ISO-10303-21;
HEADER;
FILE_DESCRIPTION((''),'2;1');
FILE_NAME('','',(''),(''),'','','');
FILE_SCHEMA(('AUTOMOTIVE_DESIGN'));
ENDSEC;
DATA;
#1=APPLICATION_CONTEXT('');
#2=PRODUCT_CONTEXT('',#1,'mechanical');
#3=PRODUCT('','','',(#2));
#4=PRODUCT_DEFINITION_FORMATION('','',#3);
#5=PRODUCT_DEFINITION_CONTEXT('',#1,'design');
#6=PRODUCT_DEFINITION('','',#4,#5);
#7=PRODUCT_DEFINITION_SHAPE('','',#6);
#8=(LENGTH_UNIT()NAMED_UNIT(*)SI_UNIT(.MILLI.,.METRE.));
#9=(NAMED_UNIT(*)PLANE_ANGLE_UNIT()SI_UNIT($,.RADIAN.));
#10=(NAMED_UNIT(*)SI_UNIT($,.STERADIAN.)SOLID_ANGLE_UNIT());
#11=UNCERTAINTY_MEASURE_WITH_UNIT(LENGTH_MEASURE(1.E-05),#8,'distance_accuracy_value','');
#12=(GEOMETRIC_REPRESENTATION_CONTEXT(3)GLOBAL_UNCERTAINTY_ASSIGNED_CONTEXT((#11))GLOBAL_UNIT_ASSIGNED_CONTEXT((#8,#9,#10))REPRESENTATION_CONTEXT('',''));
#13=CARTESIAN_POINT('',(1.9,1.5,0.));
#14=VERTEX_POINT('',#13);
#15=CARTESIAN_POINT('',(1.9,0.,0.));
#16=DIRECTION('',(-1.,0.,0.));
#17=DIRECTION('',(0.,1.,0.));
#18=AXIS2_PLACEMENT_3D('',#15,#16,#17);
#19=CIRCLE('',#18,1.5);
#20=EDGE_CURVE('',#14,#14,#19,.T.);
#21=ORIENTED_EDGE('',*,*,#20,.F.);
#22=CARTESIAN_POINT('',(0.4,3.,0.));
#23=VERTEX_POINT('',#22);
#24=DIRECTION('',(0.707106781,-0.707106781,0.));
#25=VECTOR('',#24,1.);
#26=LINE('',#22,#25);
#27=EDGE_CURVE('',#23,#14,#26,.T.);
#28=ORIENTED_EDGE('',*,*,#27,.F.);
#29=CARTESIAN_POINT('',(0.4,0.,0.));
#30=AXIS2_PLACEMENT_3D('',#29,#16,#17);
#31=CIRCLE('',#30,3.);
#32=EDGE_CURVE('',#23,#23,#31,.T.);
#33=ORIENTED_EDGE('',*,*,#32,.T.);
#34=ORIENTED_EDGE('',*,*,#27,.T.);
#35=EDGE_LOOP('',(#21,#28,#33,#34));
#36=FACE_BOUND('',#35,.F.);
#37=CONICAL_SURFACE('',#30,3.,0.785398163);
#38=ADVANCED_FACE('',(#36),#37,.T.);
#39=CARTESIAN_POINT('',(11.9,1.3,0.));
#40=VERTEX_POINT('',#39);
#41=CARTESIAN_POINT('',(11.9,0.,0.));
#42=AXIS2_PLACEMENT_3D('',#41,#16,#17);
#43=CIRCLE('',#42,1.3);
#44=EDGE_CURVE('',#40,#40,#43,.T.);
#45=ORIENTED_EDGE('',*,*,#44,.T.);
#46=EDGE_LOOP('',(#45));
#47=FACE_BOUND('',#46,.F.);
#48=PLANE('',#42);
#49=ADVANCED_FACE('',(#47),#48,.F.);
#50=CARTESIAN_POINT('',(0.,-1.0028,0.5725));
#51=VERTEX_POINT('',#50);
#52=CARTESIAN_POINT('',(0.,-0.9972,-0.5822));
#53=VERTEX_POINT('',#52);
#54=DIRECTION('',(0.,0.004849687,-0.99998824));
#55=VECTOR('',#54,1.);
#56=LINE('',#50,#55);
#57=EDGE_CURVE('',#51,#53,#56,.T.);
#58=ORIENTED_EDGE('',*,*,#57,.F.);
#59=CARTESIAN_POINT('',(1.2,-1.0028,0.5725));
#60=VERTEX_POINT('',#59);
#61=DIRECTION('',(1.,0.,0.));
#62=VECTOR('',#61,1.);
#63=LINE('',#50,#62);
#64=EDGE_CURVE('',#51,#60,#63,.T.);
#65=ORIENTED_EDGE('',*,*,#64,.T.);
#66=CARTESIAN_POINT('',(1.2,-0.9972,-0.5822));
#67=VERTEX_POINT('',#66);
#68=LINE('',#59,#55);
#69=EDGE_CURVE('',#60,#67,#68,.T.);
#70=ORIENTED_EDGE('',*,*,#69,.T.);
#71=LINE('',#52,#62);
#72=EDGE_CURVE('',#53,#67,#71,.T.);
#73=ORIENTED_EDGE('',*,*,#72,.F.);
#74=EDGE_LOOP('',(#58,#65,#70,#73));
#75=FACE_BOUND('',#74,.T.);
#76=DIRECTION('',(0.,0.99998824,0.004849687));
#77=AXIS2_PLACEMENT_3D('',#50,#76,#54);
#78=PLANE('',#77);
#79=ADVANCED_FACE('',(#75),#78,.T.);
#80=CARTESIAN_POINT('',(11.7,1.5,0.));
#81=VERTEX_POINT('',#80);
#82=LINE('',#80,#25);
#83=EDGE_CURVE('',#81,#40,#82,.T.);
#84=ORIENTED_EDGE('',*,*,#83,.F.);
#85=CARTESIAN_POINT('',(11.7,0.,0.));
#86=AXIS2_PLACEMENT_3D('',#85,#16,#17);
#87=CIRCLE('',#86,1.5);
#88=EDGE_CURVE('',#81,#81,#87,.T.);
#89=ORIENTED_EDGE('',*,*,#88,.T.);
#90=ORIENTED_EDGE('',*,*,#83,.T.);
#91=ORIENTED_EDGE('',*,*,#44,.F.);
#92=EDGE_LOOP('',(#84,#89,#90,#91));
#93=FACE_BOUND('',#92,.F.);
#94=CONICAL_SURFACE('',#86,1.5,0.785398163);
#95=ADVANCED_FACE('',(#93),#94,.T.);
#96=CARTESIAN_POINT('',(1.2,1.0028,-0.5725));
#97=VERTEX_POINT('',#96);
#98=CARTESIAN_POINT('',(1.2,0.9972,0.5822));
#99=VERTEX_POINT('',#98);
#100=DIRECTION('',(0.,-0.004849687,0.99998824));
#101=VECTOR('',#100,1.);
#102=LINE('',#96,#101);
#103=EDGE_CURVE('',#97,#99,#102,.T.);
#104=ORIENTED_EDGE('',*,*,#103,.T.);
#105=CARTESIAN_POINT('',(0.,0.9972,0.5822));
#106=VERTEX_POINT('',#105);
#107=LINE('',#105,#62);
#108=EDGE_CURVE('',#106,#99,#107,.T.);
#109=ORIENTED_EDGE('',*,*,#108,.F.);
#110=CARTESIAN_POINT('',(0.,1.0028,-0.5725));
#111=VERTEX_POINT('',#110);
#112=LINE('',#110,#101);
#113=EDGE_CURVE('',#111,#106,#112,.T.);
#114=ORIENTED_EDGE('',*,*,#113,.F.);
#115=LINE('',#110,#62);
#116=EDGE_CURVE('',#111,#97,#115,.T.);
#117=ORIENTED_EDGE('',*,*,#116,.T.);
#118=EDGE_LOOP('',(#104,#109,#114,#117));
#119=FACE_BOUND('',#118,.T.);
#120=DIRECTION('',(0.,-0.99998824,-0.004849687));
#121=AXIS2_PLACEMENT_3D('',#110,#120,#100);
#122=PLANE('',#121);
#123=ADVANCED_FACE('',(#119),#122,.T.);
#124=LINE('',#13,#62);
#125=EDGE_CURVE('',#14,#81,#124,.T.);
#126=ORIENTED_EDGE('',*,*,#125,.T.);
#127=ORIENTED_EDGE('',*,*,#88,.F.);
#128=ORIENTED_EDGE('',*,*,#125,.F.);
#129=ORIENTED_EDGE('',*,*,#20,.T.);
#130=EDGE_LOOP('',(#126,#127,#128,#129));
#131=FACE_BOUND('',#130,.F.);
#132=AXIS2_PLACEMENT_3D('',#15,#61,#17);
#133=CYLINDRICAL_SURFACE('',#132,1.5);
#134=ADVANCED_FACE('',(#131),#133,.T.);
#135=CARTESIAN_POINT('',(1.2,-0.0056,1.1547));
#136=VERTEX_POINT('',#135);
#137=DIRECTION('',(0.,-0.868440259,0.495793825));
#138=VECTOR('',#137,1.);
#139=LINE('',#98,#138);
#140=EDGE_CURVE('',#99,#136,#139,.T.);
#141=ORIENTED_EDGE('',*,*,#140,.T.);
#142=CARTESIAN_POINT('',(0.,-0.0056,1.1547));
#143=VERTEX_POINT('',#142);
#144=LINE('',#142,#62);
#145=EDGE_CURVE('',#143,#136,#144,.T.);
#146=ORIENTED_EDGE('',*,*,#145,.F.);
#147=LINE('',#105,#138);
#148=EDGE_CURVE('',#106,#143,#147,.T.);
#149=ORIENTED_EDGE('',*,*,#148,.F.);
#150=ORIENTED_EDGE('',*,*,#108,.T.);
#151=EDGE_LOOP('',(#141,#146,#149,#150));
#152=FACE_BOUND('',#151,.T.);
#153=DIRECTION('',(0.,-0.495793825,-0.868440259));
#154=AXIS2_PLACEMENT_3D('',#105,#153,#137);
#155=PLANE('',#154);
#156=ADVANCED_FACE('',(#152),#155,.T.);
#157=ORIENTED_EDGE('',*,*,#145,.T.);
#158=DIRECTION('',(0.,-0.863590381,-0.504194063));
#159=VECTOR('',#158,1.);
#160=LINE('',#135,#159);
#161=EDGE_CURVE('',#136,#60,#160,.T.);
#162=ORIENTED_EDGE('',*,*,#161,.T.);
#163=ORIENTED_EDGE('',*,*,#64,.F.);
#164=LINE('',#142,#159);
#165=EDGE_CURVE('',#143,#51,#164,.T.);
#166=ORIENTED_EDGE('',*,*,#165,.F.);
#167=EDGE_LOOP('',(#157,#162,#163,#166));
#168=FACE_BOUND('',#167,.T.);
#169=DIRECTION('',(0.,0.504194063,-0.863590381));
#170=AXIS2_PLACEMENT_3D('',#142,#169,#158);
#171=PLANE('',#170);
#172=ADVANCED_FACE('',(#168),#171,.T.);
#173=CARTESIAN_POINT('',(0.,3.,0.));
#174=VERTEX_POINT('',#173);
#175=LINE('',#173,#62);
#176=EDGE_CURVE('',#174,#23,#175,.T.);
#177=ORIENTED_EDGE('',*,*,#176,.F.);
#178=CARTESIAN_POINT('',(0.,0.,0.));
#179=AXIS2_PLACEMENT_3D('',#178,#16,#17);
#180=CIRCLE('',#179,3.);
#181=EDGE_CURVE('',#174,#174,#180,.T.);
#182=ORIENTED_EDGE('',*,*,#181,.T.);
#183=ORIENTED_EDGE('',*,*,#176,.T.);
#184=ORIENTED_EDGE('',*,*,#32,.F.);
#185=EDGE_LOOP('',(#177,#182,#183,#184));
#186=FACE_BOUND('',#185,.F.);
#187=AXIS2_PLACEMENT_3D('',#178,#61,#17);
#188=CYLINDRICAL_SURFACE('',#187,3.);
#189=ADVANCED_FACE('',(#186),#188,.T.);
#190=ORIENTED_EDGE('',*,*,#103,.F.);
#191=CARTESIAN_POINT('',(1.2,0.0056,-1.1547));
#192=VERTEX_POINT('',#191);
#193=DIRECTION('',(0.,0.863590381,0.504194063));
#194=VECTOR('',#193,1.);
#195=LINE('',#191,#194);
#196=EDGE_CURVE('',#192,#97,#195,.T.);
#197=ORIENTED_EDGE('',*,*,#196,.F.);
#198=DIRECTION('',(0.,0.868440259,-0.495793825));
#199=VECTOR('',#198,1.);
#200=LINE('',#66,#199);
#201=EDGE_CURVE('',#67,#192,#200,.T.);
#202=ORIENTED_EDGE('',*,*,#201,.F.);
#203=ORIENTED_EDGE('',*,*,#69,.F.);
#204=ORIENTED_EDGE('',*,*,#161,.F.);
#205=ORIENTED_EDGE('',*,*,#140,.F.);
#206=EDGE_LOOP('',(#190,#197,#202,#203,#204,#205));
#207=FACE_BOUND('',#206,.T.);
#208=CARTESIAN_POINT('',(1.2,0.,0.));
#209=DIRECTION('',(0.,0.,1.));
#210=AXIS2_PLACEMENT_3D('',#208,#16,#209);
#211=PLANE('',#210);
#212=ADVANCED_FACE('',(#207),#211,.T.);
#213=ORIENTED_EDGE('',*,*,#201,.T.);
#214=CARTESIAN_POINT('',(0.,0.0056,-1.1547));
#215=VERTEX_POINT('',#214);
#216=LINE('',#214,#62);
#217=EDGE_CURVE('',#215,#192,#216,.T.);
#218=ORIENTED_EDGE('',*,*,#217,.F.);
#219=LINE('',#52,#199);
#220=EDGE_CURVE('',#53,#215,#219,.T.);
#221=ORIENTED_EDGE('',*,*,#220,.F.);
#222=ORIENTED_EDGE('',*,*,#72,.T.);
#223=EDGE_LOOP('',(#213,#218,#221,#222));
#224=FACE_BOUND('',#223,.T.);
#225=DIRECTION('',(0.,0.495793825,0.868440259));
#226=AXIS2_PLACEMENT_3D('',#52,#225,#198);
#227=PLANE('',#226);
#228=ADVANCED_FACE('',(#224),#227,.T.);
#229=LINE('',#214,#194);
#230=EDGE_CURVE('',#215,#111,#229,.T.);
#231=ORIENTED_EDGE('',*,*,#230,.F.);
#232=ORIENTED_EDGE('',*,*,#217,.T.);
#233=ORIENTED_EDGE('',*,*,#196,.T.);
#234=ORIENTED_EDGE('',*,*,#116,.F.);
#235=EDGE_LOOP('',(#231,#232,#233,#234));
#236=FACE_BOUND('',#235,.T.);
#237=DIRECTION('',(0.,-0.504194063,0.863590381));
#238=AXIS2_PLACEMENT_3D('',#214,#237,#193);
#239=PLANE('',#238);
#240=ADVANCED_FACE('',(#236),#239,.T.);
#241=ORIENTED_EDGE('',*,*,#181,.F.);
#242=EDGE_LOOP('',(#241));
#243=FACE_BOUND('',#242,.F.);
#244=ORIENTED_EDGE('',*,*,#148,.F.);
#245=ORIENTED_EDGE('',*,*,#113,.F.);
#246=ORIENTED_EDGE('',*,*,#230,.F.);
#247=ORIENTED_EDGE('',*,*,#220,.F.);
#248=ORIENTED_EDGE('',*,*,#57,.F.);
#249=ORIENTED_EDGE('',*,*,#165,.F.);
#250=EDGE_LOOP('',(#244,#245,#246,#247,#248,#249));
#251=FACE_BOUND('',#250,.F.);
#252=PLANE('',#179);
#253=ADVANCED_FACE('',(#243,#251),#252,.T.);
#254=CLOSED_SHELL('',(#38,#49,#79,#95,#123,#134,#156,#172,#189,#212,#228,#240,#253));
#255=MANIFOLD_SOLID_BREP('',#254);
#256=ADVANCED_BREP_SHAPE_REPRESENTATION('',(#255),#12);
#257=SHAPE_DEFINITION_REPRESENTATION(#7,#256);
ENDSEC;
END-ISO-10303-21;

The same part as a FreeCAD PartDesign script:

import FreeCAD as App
import Part
import Sketcher
from FreeCAD import Vector
Q = App.Units.Quantity


def edges_at(feature, points):
    """Names of the edges that pass closest to the given points."""
    edges = feature.Shape.Edges
    near = lambda p: min(range(len(edges)), key=lambda i: edges[i].distToShape(Part.Vertex(*p))[0])
    return sorted({f"Edge{near(p) + 1}" for p in points})


def add_polygon(sketch, points):
    """Adds a closed chain of lines whose ends are joined by coincident constraints."""
    first, n = sketch.GeometryCount, len(points)
    for a, b in zip(points, points[1:] + points[:1]):
        sketch.addGeometry(Part.LineSegment(App.Vector(*a, 0), App.Vector(*b, 0)), False)
    for i in range(n):
        sketch.addConstraint(Sketcher.Constraint("Coincident", first + i, 2, first + (i + 1) % n, 1))

doc = App.newDocument("Part")
params = doc.addObject("Spreadsheet::Sheet", "Params")
for row, (alias, value) in enumerate([
    ("sketch1_width", "10 mm"),
    ("sketch1_height", "3 mm"),
    ("sketch1_height2", "1.5 mm"),
    ("revolution_angle", "360 deg"),
    ("pocket1_length", "1.2 mm"),
    ("chamfer_size", "0.2 mm"),
], start=1):
    params.set(f"A{row}", alias)
    params.set(f"B{row}", "=" + value)
    params.setAlias(f"B{row}", alias)

body = doc.addObject("PartDesign::Body", "Body")

sketch1 = doc.addObject("Sketcher::SketchObject", "Sketch")
body.addObject(sketch1)
sketch1.AttachmentSupport = (doc.XY_Plane, [""])
sketch1.MapMode = "FlatFace"
add_polygon(sketch1, [(0, 3), (0, 0), (11.9, 0), (11.9, 1.5), (1.9, 1.5), (0.4, 3)])
sketch1.addConstraint([
    Sketcher.Constraint("Vertical", 0),
    Sketcher.Constraint("Horizontal", 1),
    Sketcher.Constraint("Vertical", 2),
    Sketcher.Constraint("Horizontal", 3),
    Sketcher.Constraint("Horizontal", 5),
    Sketcher.Constraint("Coincident", 0, 2, -1, 1),
    Sketcher.Constraint("DistanceX", 3, 2, 3, 1, Q("10 mm")),
    Sketcher.Constraint("DistanceY", 0, 2, 0, 1, Q("3 mm")),
    Sketcher.Constraint("DistanceY", 2, 1, 2, 2, Q("1.5 mm")),
    Sketcher.Constraint("DistanceX", -1, 1, 3, 2, Q("1.9 mm")),
    Sketcher.Constraint("DistanceX", 4, 2, 3, 2, Q("1.5 mm")),
])
sketch1.setExpression("Constraints[12]", "Params.sketch1_width")
sketch1.setExpression("Constraints[13]", "Params.sketch1_height")
sketch1.setExpression("Constraints[14]", "Params.sketch1_height2")
revolution = doc.addObject("PartDesign::Revolution", "Revolution")
body.addObject(revolution)
revolution.Profile = sketch1
revolution.ReferenceAxis = (sketch1, ["H_Axis"])
revolution.setExpression("Angle", "Params.revolution_angle")

sketch2 = doc.addObject("Sketcher::SketchObject", "Sketch001")
body.addObject(sketch2)
sketch2.AttachmentSupport = (doc.YZ_Plane, [""])
sketch2.MapMode = "FlatFace"
add_polygon(sketch2, [(-0.9972, -0.5822), (-1.0028, 0.5725), (-0.0056, 1.1547), (0.9972, 0.5822), (1.0028, -0.5725), (0.0056, -1.1547)])
sketch2.addConstraint([
    Sketcher.Constraint("Symmetric", 0, 2, 3, 2, -1, 1),
    Sketcher.Constraint("Symmetric", 1, 2, 4, 2, -1, 1),
    Sketcher.Constraint("Symmetric", 2, 2, 5, 2, -1, 1),
    Sketcher.Constraint("Equal", 0, 1),
    Sketcher.Constraint("Equal", 1, 2),
    Sketcher.Constraint("DistanceX", 0, 2, 2, 2, Q("2 mm")),
    Sketcher.Constraint("DistanceY", 3, 2, 0, 2, Q("1.145 mm")),
    Sketcher.Constraint("DistanceY", 4, 2, 2, 2, Q("1.737 mm")),
    Sketcher.Constraint("DistanceX", 0, 2, -1, 1, Q("1.0028 mm")),
])
pocket1 = doc.addObject("PartDesign::Pocket", "Pocket")
body.addObject(pocket1)
pocket1.Profile = sketch2
pocket1.setExpression("Length", "Params.pocket1_length")
pocket1.Reversed = True
doc.recompute()

chamfer = doc.addObject("PartDesign::Chamfer", "Chamfer")
body.addObject(chamfer)
chamfer.Base = (pocket1, edges_at(pocket1, [(11.9, -1.5, 0)]))
chamfer.setExpression("Size", "Params.chamfer_size")

doc.recompute()
